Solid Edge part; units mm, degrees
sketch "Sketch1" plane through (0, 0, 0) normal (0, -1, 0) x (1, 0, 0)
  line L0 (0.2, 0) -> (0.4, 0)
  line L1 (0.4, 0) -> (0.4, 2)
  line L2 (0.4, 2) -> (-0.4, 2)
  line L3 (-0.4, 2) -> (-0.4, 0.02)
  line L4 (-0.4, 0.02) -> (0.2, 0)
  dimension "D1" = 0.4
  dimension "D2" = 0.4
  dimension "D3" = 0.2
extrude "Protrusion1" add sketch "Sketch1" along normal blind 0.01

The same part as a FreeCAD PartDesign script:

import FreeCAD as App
import Part
import Sketcher
Q = App.Units.Quantity


def add_polygon(sketch, points):
    """Adds a closed chain of lines whose ends are joined by coincident constraints."""
    first, n = sketch.GeometryCount, len(points)
    for a, b in zip(points, points[1:] + points[:1]):
        sketch.addGeometry(Part.LineSegment(App.Vector(*a, 0), App.Vector(*b, 0)), False)
    for i in range(n):
        sketch.addConstraint(Sketcher.Constraint("Coincident", first + i, 2, first + (i + 1) % n, 1))

doc = App.newDocument("Part")
body = doc.addObject("PartDesign::Body", "Body")

sketch1 = body.newObject("Sketcher::SketchObject", "Sketch")
sketch1.AttachmentSupport = (doc.getObject("XZ_Plane"), [""])
sketch1.MapMode = "FlatFace"
add_polygon(sketch1, [(-0.4, 0.02), (0.2, 0), (0.4, 0), (0.4, 2), (-0.4, 2)])
sketch1.addConstraint(Sketcher.Constraint("Horizontal", 1))
sketch1.addConstraint(Sketcher.Constraint("Vertical", 2))
sketch1.addConstraint(Sketcher.Constraint("Horizontal", 3))
sketch1.addConstraint(Sketcher.Constraint("Vertical", 4))
sketch1.addConstraint(Sketcher.Constraint("PointOnObject", 0, 2, -1))
sketch1.addConstraint(Sketcher.Constraint("DistanceX", 1, 1, 1, 2, Q("0.2 mm")))
sketch1.addConstraint(Sketcher.Constraint("DistanceX", -1, 1, 0, 2, Q("0.2 mm")))
sketch1.addConstraint(Sketcher.Constraint("DistanceX", 3, 2, -1, 1, Q("0.4 mm")))
sketch1.addConstraint(Sketcher.Constraint("DistanceY", 2, 1, 2, 2, Q("2 mm")))
sketch1.addConstraint(Sketcher.Constraint("DistanceY", 4, 2, 4, 1, Q("1.98 mm")))
pad1 = body.newObject("PartDesign::Pad", "Pad")
pad1.Profile = sketch1
pad1.Length = 0.01

doc.recompute()
